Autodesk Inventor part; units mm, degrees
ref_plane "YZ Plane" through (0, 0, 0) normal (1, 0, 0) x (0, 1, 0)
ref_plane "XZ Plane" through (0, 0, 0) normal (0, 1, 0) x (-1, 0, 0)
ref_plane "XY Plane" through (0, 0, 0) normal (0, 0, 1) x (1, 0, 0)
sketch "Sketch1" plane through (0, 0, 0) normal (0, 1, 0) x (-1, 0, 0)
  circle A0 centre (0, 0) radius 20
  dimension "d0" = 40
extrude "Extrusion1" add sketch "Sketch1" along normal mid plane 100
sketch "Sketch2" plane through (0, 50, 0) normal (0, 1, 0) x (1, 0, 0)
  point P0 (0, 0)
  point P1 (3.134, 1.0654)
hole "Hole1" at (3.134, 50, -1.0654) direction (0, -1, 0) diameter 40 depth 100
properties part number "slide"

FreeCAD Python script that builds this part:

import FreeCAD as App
import Part
import Sketcher
Q = App.Units.Quantity

doc = App.newDocument("Part")
body = doc.addObject("PartDesign::Body", "Body")

# Sketch on XZ plane
sketch1 = doc.addObject("Sketcher::SketchObject", "Sketch")
body.addObject(sketch1)
sketch1.AttachmentSupport = (doc.XZ_Plane, [""])
sketch1.MapMode = "FlatFace"
sketch1.addGeometry(Part.Circle(App.Vector(0, 0, 0), App.Vector(0, 0, 1), 20), False)
sketch1.addConstraint(Sketcher.Constraint("Coincident", 0, 3, -1, 1))
sketch1.addConstraint(Sketcher.Constraint("Diameter", 0, Q("1.5748 in")))
pad1 = doc.addObject("PartDesign::Pad", "Pad")
body.addObject(pad1)
pad1.Profile = sketch1
pad1.Length = Q("3.9370079 in")
pad1.Midplane = True

# Sketch on XZ plane
sketch2 = doc.addObject("Sketcher::SketchObject", "Sketch001")
body.addObject(sketch2)
sketch2.AttachmentSupport = (doc.XZ_Plane, [""])
sketch2.MapMode = "FlatFace"
sketch2.AttachmentOffset = App.Placement(App.Vector(0, 0, -1.9685039 * 25.4), App.Rotation())
sketch2.addGeometry(Part.Circle(App.Vector(3, -1, 0), App.Vector(0, 0, 1), 20), False)
sketch2.addConstraint(Sketcher.Constraint("Diameter", 0, Q("1.5748 in")))
sketch2.addConstraint(Sketcher.Constraint("DistanceX", -1, 1, 0, 3, 3.134))
sketch2.addConstraint(Sketcher.Constraint("DistanceY", 0, 3, -1, 1, 1.0654))
doc.recompute()
hole = doc.addObject("PartDesign::Hole", "Hole")
body.addObject(hole)
hole.Profile = sketch2
hole.ThreadType = "None"
hole.Diameter = Q("1.5748031 in")
hole.DepthType = "Dimension"
hole.Depth = Q("3.9370079 in")
hole.DrillPoint = "Flat"
hole.Reversed = True

doc.recompute()
